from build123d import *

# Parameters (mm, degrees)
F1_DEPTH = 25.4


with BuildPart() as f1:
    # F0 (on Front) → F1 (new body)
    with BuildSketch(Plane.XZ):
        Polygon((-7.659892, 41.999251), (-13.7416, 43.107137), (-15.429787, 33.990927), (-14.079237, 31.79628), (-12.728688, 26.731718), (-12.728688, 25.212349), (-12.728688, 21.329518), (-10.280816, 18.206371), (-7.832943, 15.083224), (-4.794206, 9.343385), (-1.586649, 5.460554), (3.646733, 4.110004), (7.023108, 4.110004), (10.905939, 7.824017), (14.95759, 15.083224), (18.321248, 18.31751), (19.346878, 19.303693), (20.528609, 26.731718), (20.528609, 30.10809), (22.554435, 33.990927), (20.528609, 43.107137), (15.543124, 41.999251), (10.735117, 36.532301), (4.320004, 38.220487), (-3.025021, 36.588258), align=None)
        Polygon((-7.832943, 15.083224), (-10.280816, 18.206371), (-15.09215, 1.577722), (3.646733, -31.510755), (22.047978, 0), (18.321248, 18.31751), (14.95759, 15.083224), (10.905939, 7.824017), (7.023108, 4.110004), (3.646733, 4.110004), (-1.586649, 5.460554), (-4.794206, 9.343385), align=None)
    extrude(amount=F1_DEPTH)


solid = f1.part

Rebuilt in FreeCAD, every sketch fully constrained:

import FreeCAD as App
import Part
import Sketcher
from FreeCAD import Vector
Q = App.Units.Quantity

doc = App.newDocument("Part")
body = doc.addObject("PartDesign::Body", "Body")

# Sketch on XZ plane
sketch1 = body.newObject("Sketcher::SketchObject", "Sketch")
sketch1.AttachmentSupport = (doc.getObject("XZ_Plane"), [""])
sketch1.MapMode = "FlatFace"
sketch1.addGeometry([
    Part.LineSegment(Vector(-7.7, 42, 0), Vector(-13.7, 43.1, 0)),  # 0
    Part.LineSegment(Vector(-13.7, 43.1, 0), Vector(-15.4, 34, 0)),  # 1
    Part.LineSegment(Vector(-15.4, 34, 0), Vector(-14.1, 31.8, 0)),  # 2
    Part.LineSegment(Vector(-14.1, 31.8, 0), Vector(-12.7, 26.7, 0)),  # 3
    Part.LineSegment(Vector(-12.7, 26.7, 0), Vector(-12.7, 21.3, 0)),  # 4
    Part.LineSegment(Vector(-12.7, 21.3, 0), Vector(-10.3, 18.2, 0)),  # 5
    Part.LineSegment(Vector(-10.3, 18.2, 0), Vector(-15.1, 1.6, 0)),  # 6
    Part.LineSegment(Vector(-15.1, 1.6, 0), Vector(3.6, -31.5, 0)),  # 7
    Part.LineSegment(Vector(3.6, -31.5, 0), Vector(22, 0, 0)),  # 8
    Part.LineSegment(Vector(22, 0, 0), Vector(18.3, 18.3, 0)),  # 9
    Part.LineSegment(Vector(18.3, 18.3, 0), Vector(19.3, 19.3, 0)),  # 10
    Part.LineSegment(Vector(19.3, 19.3, 0), Vector(20.5, 26.7, 0)),  # 11
    Part.LineSegment(Vector(20.5, 26.7, 0), Vector(20.5, 30.1, 0)),  # 12
    Part.LineSegment(Vector(20.5, 30.1, 0), Vector(22.6, 34, 0)),  # 13
    Part.LineSegment(Vector(22.6, 34, 0), Vector(20.5, 43.1, 0)),  # 14
    Part.LineSegment(Vector(20.5, 43.1, 0), Vector(15.5, 42, 0)),  # 15
    Part.LineSegment(Vector(15.5, 42, 0), Vector(10.7, 36.5, 0)),  # 16
    Part.LineSegment(Vector(10.7, 36.5, 0), Vector(4.3, 38.2, 0)),  # 17
    Part.LineSegment(Vector(4.3, 38.2, 0), Vector(-3, 36.6, 0)),  # 18
    Part.LineSegment(Vector(-3, 36.6, 0), Vector(-7.7, 42, 0)),  # 19
], False)
sketch1.addConstraint([
    Sketcher.Constraint("Coincident", 0, 2, 1, 1),
    Sketcher.Constraint("Coincident", 1, 2, 2, 1),
    Sketcher.Constraint("Coincident", 2, 2, 3, 1),
    Sketcher.Constraint("Coincident", 3, 2, 4, 1),
    Sketcher.Constraint("Coincident", 4, 2, 5, 1),
    Sketcher.Constraint("Coincident", 5, 2, 6, 1),
    Sketcher.Constraint("Coincident", 6, 2, 7, 1),
    Sketcher.Constraint("Coincident", 7, 2, 8, 1),
    Sketcher.Constraint("Coincident", 8, 2, 9, 1),
    Sketcher.Constraint("Coincident", 9, 2, 10, 1),
    Sketcher.Constraint("Coincident", 10, 2, 11, 1),
    Sketcher.Constraint("Coincident", 11, 2, 12, 1),
    Sketcher.Constraint("Coincident", 12, 2, 13, 1),
    Sketcher.Constraint("Coincident", 13, 2, 14, 1),
    Sketcher.Constraint("Coincident", 14, 2, 15, 1),
    Sketcher.Constraint("Coincident", 15, 2, 16, 1),
    Sketcher.Constraint("Coincident", 16, 2, 17, 1),
    Sketcher.Constraint("Coincident", 17, 2, 18, 1),
    Sketcher.Constraint("Coincident", 18, 2, 19, 1),
    Sketcher.Constraint("Coincident", 19, 2, 0, 1),
    Sketcher.Constraint("Vertical", 4),
    Sketcher.Constraint("Vertical", 12),
    Sketcher.Constraint("PointOnObject", 8, 2, -1),
    Sketcher.Constraint("Perpendicular", 14, 15),
    Sketcher.Constraint("Parallel", 15, 18),
    Sketcher.Constraint("Horizontal", 3, 2, 11, 2),
    Sketcher.Constraint("Horizontal", 1, 2, 13, 2),
    Sketcher.Constraint("Horizontal", 0, 2, 14, 2),
    Sketcher.Constraint("Horizontal", 15, 2, 19, 2),
    Sketcher.Constraint("Vertical", 12, 2, 14, 2),
    Sketcher.Constraint("DistanceY", 4, 2, 4, 1, 5.4022),
    Sketcher.Constraint("Distance", 15, 5.1071),
    Sketcher.Constraint("Distance", 18, 7.524199),
    Sketcher.Constraint("DistanceY", 12, 1, 12, 2, 3.376372),
    Sketcher.Constraint("DistanceX", 0, 2, -1, 1, 13.7416),
    Sketcher.Constraint("DistanceY", -1, 1, 16, 2, 36.532301),
    Sketcher.Constraint("DistanceX", 1, 2, 3, 2, 2.701099),
    Sketcher.Constraint("DistanceX", 10, 2, 8, 2, 2.7011),
    Sketcher.Constraint("Distance", 2, 2.576909),
    Sketcher.Constraint("Distance", 5, 3.968139),
    Sketcher.Constraint("Distance", 9, 18.692771),
    Sketcher.Constraint("Distance", 10, 1.42284),
    Sketcher.Constraint("Distance", 11, 7.521439),
    Sketcher.Constraint("Distance", 14, 9.33859),
    Sketcher.Constraint("DistanceY", -1, 1, 2, 2, 31.79628),
    Sketcher.Constraint("DistanceY", -1, 1, 3, 2, 26.731718),
    Sketcher.Constraint("DistanceY", -1, 1, 5, 2, 18.206371),
    Sketcher.Constraint("DistanceX", 6, 2, -1, 1, 15.09215),
    Sketcher.Constraint("DistanceX", -1, 1, 8, 2, 22.047978),
    Sketcher.Constraint("DistanceX", -1, 1, 9, 2, 18.321248),
    Sketcher.Constraint("DistanceY", -1, 1, 15, 2, 41.999251),
    Sketcher.Constraint("DistanceX", 18, 2, -1, 1, 3.025021),
    Sketcher.Constraint("DistanceY", -1, 1, 18, 2, 36.588258),
    Sketcher.Constraint("DistanceY", 1, 2, 0, 2, 9.11621),
    Sketcher.Constraint("DistanceY", 6, 2, 5, 2, 16.628649),
    Sketcher.Constraint("DistanceX", 5, 2, 7, 2, 13.927549),
    Sketcher.Constraint("DistanceX", 16, 2, 12, 2, 9.793492),
    Sketcher.Constraint("DistanceX", 19, 2, 18, 2, 4.634871),
    Sketcher.Constraint("Distance", 1, 9.271206),
    Sketcher.Constraint("Distance", 7, 38.026215),
])
pad1 = body.newObject("PartDesign::Pad", "Pad")
pad1.Profile = sketch1
pad1.Length = Q("1 in")

doc.recompute()
